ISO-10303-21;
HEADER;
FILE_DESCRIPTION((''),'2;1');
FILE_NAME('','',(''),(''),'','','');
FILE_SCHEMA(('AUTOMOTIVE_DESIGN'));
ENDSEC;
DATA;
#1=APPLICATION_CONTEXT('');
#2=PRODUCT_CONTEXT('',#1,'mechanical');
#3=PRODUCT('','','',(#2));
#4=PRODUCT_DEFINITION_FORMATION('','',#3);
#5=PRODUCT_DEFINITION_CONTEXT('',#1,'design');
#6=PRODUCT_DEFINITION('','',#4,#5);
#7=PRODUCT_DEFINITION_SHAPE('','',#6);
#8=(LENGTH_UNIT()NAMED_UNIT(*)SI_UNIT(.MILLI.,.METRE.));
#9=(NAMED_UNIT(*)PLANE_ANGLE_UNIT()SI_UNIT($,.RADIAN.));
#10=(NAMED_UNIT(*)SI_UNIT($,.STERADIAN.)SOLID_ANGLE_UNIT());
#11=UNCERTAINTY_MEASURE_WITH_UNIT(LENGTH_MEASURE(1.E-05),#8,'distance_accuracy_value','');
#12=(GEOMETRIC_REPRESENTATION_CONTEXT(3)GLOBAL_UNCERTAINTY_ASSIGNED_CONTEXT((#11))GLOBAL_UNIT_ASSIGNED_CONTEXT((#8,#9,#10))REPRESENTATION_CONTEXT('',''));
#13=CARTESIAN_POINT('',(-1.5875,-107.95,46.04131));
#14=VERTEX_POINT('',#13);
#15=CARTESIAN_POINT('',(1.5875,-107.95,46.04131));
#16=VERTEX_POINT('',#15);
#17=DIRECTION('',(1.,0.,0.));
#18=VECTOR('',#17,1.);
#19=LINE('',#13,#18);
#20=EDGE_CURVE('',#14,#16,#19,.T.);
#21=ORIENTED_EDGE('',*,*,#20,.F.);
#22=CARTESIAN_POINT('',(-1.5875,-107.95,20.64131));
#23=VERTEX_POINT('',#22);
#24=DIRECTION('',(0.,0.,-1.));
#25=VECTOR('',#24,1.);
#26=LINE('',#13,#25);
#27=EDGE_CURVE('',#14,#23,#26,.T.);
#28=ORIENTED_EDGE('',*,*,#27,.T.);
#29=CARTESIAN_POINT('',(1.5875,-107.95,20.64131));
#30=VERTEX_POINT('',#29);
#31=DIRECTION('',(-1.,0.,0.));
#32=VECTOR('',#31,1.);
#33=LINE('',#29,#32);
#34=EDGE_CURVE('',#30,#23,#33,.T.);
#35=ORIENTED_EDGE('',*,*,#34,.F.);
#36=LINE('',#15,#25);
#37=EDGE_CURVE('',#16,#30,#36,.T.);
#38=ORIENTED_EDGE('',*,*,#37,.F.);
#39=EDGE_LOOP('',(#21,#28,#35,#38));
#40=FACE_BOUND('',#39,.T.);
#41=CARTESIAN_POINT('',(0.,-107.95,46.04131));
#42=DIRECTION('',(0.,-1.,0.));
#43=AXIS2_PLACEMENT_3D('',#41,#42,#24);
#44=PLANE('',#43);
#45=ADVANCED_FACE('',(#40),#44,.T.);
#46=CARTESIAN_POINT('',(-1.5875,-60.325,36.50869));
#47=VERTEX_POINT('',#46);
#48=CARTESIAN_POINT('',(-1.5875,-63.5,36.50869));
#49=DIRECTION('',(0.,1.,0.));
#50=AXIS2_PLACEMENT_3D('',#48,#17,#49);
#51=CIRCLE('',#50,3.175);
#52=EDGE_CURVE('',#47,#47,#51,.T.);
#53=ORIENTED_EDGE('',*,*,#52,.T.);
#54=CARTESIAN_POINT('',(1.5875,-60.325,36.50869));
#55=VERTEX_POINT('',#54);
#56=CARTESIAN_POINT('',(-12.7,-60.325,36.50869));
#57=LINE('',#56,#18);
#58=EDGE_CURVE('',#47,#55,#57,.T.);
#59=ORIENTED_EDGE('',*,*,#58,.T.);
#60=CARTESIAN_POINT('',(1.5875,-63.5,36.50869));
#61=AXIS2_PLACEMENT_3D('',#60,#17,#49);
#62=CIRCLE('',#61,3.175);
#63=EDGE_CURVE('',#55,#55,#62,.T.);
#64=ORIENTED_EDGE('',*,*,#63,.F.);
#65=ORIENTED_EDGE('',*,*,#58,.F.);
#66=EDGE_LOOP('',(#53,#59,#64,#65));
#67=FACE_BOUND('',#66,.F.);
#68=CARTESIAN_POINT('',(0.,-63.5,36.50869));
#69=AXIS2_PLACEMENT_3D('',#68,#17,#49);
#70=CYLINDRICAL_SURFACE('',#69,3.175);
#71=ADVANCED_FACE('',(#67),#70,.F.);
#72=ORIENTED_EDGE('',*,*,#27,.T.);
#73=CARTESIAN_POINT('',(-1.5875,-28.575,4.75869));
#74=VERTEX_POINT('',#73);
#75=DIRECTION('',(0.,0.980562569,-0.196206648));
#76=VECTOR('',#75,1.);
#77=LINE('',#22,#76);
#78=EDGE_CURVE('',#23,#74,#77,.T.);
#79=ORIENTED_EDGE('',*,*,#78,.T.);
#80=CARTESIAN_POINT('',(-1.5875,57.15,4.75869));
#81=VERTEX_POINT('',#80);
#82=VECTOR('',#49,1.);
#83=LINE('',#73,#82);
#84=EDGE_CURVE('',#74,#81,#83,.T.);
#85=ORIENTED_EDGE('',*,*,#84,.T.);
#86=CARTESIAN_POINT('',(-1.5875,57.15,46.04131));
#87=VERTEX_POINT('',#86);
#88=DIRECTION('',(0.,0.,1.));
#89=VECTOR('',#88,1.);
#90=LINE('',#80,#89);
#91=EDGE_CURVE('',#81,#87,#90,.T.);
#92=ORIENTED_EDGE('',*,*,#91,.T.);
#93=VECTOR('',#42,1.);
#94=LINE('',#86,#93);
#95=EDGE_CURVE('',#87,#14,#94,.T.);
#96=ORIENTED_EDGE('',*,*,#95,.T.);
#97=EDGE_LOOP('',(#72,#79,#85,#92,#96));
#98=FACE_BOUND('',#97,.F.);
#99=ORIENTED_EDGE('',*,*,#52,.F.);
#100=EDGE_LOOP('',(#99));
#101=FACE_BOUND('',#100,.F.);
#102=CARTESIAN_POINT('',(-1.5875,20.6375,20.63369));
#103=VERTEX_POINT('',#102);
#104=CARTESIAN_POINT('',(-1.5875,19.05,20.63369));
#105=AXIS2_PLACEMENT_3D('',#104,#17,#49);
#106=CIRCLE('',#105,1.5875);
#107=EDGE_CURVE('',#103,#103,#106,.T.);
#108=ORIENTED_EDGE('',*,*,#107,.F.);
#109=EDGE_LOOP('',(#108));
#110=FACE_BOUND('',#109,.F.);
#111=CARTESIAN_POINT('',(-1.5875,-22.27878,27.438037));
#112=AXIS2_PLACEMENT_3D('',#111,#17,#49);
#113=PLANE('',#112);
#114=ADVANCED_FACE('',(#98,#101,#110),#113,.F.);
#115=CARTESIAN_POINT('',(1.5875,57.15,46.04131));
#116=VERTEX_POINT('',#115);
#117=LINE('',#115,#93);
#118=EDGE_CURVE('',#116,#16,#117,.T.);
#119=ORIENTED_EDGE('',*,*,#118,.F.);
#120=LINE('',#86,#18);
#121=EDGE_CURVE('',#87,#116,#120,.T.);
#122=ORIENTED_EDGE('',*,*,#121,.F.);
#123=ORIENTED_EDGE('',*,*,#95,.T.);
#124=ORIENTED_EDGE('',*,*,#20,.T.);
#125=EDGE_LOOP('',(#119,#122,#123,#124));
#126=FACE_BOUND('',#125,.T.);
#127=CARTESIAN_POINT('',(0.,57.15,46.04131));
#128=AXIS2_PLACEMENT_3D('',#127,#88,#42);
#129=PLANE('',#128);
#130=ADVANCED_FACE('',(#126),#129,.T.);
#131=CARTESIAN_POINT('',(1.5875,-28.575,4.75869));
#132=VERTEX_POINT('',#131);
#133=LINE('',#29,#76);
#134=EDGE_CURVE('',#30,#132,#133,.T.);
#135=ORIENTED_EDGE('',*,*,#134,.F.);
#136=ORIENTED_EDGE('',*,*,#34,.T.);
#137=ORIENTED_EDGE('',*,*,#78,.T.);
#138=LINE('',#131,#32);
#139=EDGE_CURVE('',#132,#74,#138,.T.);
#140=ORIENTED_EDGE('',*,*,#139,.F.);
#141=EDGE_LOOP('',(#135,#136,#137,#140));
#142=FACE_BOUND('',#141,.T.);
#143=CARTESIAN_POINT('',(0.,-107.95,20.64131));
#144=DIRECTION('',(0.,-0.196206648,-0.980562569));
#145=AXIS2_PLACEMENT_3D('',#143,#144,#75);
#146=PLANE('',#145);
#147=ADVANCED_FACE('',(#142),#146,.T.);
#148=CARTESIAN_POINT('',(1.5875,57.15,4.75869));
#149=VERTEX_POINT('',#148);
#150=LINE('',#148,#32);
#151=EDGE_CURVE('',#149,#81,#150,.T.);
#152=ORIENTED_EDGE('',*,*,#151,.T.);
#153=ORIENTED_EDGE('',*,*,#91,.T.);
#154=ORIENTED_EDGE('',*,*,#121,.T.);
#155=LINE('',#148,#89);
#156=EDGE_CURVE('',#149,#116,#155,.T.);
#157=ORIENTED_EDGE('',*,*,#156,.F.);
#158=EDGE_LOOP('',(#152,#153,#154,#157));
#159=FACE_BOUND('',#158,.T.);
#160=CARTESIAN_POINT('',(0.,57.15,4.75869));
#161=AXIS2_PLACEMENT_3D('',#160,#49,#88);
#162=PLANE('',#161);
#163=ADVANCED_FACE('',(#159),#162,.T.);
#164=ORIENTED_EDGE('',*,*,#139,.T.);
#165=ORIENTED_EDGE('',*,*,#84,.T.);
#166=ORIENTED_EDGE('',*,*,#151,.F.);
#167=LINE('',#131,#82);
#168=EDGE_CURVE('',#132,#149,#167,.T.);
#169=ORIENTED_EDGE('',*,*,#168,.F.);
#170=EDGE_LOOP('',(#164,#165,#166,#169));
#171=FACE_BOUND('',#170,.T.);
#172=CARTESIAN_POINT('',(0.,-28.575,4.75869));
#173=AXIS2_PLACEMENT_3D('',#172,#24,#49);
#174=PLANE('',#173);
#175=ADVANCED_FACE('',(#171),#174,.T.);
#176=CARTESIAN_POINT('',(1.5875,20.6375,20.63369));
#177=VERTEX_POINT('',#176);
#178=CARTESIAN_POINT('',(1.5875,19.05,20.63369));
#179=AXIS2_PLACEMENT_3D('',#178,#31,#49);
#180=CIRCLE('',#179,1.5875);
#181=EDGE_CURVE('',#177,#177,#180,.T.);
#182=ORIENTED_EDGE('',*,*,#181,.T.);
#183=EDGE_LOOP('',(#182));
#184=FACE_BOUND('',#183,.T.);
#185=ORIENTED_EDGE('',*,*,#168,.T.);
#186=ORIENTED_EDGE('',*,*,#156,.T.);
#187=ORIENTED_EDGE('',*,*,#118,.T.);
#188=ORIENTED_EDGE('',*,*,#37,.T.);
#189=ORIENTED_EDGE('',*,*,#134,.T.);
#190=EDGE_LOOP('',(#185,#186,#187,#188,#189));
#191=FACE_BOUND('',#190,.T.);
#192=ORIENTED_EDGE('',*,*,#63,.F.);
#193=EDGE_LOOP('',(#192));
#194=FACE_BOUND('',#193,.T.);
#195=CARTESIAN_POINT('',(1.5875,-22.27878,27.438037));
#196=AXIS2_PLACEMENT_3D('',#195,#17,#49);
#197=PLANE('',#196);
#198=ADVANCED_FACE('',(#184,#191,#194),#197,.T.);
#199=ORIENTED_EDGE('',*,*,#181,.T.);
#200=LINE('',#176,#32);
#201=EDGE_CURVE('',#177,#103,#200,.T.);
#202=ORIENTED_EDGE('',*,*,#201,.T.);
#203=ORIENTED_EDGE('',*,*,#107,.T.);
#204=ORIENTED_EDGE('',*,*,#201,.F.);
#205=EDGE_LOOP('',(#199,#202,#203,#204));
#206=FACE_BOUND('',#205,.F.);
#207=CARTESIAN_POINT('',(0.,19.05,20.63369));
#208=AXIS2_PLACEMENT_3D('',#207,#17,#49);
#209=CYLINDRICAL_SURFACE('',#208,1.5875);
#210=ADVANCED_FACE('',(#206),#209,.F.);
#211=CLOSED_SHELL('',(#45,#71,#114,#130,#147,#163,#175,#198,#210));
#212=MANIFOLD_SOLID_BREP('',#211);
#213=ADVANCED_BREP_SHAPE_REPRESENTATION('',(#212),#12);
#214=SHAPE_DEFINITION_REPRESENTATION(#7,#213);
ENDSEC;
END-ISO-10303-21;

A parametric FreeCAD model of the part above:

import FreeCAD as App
import Part
import Sketcher
from FreeCAD import Vector
Q = App.Units.Quantity

doc = App.newDocument("Part")
body = doc.addObject("PartDesign::Body", "Body")

sketch1 = body.newObject("Sketcher::SketchObject", "Sketch")
sketch1.AttachmentSupport = (doc.getObject("YZ_Plane"), [""])
sketch1.MapMode = "FlatFace"
sketch1.addGeometry([
    Part.LineSegment(Vector(57, 5, 0), Vector(57, 46, 0)),
    Part.LineSegment(Vector(57, 46, 0), Vector(-108, 46, 0)),
    Part.LineSegment(Vector(-108, 46, 0), Vector(-108, 21, 0)),
    Part.LineSegment(Vector(-108, 21, 0), Vector(-29, 5, 0)),
    Part.LineSegment(Vector(-29, 5, 0), Vector(57, 5, 0)),
], False)
sketch1.addConstraint([
    Sketcher.Constraint("Coincident", 0, 2, 1, 1),
    Sketcher.Constraint("Coincident", 1, 2, 2, 1),
    Sketcher.Constraint("Coincident", 2, 2, 3, 1),
    Sketcher.Constraint("Coincident", 3, 2, 4, 1),
    Sketcher.Constraint("Coincident", 4, 2, 0, 1),
    Sketcher.Constraint("Vertical", 0),
    Sketcher.Constraint("Horizontal", 1),
    Sketcher.Constraint("Vertical", 2),
    Sketcher.Constraint("Horizontal", 4),
    Sketcher.Constraint("DistanceY", 2, 2, 2, 1, Q("1 in")),
    Sketcher.Constraint("DistanceX", 1, 2, 1, 1, Q("6.5 in")),
    Sketcher.Constraint("DistanceX", 4, 1, 4, 2, Q("3.375 in")),
    Sketcher.Constraint("DistanceX", -1, 1, 0, 2, Q("2.25 in")),
    Sketcher.Constraint("DistanceY", 0, 1, 0, 2, Q("1.6253 in")),
    Sketcher.Constraint("DistanceY", -1, 1, 0, 2, 46.04131),
])
pad1 = body.newObject("PartDesign::Pad", "Pad")
pad1.Profile = sketch1
pad1.Length = Q("0.125 in")
pad1.Midplane = True

sketch2 = body.newObject("Sketcher::SketchObject", "Sketch001")
sketch2.AttachmentSupport = (doc.getObject("YZ_Plane"), [""])
sketch2.MapMode = "FlatFace"
sketch2.addGeometry([
    Part.Circle(Vector(19.1, 20.6, 0), Vector(0, 0, 1), 1.6),
    Part.Circle(Vector(-63.5, 36.5, 0), Vector(0, 0, 1), 3.2),
], False)
sketch2.addConstraint([
    Sketcher.Constraint("Diameter", 1, Q("0.25 in")),
    Sketcher.Constraint("Diameter", 0, Q("0.125 in")),
    Sketcher.Constraint("DistanceX", 1, 3, -1, 1, Q("2.5 in")),
    Sketcher.Constraint("DistanceX", -1, 1, 0, 3, Q("0.75 in")),
    Sketcher.Constraint("DistanceY", 0, 3, 1, 3, Q("0.625 in")),
    Sketcher.Constraint("DistanceY", -1, 1, 0, 3, 20.63369),
])
pocket1 = body.newObject("PartDesign::Pocket", "Pocket")
pocket1.Profile = sketch2
pocket1.Length = Q("1 in")
pocket1.Midplane = True

doc.recompute()
